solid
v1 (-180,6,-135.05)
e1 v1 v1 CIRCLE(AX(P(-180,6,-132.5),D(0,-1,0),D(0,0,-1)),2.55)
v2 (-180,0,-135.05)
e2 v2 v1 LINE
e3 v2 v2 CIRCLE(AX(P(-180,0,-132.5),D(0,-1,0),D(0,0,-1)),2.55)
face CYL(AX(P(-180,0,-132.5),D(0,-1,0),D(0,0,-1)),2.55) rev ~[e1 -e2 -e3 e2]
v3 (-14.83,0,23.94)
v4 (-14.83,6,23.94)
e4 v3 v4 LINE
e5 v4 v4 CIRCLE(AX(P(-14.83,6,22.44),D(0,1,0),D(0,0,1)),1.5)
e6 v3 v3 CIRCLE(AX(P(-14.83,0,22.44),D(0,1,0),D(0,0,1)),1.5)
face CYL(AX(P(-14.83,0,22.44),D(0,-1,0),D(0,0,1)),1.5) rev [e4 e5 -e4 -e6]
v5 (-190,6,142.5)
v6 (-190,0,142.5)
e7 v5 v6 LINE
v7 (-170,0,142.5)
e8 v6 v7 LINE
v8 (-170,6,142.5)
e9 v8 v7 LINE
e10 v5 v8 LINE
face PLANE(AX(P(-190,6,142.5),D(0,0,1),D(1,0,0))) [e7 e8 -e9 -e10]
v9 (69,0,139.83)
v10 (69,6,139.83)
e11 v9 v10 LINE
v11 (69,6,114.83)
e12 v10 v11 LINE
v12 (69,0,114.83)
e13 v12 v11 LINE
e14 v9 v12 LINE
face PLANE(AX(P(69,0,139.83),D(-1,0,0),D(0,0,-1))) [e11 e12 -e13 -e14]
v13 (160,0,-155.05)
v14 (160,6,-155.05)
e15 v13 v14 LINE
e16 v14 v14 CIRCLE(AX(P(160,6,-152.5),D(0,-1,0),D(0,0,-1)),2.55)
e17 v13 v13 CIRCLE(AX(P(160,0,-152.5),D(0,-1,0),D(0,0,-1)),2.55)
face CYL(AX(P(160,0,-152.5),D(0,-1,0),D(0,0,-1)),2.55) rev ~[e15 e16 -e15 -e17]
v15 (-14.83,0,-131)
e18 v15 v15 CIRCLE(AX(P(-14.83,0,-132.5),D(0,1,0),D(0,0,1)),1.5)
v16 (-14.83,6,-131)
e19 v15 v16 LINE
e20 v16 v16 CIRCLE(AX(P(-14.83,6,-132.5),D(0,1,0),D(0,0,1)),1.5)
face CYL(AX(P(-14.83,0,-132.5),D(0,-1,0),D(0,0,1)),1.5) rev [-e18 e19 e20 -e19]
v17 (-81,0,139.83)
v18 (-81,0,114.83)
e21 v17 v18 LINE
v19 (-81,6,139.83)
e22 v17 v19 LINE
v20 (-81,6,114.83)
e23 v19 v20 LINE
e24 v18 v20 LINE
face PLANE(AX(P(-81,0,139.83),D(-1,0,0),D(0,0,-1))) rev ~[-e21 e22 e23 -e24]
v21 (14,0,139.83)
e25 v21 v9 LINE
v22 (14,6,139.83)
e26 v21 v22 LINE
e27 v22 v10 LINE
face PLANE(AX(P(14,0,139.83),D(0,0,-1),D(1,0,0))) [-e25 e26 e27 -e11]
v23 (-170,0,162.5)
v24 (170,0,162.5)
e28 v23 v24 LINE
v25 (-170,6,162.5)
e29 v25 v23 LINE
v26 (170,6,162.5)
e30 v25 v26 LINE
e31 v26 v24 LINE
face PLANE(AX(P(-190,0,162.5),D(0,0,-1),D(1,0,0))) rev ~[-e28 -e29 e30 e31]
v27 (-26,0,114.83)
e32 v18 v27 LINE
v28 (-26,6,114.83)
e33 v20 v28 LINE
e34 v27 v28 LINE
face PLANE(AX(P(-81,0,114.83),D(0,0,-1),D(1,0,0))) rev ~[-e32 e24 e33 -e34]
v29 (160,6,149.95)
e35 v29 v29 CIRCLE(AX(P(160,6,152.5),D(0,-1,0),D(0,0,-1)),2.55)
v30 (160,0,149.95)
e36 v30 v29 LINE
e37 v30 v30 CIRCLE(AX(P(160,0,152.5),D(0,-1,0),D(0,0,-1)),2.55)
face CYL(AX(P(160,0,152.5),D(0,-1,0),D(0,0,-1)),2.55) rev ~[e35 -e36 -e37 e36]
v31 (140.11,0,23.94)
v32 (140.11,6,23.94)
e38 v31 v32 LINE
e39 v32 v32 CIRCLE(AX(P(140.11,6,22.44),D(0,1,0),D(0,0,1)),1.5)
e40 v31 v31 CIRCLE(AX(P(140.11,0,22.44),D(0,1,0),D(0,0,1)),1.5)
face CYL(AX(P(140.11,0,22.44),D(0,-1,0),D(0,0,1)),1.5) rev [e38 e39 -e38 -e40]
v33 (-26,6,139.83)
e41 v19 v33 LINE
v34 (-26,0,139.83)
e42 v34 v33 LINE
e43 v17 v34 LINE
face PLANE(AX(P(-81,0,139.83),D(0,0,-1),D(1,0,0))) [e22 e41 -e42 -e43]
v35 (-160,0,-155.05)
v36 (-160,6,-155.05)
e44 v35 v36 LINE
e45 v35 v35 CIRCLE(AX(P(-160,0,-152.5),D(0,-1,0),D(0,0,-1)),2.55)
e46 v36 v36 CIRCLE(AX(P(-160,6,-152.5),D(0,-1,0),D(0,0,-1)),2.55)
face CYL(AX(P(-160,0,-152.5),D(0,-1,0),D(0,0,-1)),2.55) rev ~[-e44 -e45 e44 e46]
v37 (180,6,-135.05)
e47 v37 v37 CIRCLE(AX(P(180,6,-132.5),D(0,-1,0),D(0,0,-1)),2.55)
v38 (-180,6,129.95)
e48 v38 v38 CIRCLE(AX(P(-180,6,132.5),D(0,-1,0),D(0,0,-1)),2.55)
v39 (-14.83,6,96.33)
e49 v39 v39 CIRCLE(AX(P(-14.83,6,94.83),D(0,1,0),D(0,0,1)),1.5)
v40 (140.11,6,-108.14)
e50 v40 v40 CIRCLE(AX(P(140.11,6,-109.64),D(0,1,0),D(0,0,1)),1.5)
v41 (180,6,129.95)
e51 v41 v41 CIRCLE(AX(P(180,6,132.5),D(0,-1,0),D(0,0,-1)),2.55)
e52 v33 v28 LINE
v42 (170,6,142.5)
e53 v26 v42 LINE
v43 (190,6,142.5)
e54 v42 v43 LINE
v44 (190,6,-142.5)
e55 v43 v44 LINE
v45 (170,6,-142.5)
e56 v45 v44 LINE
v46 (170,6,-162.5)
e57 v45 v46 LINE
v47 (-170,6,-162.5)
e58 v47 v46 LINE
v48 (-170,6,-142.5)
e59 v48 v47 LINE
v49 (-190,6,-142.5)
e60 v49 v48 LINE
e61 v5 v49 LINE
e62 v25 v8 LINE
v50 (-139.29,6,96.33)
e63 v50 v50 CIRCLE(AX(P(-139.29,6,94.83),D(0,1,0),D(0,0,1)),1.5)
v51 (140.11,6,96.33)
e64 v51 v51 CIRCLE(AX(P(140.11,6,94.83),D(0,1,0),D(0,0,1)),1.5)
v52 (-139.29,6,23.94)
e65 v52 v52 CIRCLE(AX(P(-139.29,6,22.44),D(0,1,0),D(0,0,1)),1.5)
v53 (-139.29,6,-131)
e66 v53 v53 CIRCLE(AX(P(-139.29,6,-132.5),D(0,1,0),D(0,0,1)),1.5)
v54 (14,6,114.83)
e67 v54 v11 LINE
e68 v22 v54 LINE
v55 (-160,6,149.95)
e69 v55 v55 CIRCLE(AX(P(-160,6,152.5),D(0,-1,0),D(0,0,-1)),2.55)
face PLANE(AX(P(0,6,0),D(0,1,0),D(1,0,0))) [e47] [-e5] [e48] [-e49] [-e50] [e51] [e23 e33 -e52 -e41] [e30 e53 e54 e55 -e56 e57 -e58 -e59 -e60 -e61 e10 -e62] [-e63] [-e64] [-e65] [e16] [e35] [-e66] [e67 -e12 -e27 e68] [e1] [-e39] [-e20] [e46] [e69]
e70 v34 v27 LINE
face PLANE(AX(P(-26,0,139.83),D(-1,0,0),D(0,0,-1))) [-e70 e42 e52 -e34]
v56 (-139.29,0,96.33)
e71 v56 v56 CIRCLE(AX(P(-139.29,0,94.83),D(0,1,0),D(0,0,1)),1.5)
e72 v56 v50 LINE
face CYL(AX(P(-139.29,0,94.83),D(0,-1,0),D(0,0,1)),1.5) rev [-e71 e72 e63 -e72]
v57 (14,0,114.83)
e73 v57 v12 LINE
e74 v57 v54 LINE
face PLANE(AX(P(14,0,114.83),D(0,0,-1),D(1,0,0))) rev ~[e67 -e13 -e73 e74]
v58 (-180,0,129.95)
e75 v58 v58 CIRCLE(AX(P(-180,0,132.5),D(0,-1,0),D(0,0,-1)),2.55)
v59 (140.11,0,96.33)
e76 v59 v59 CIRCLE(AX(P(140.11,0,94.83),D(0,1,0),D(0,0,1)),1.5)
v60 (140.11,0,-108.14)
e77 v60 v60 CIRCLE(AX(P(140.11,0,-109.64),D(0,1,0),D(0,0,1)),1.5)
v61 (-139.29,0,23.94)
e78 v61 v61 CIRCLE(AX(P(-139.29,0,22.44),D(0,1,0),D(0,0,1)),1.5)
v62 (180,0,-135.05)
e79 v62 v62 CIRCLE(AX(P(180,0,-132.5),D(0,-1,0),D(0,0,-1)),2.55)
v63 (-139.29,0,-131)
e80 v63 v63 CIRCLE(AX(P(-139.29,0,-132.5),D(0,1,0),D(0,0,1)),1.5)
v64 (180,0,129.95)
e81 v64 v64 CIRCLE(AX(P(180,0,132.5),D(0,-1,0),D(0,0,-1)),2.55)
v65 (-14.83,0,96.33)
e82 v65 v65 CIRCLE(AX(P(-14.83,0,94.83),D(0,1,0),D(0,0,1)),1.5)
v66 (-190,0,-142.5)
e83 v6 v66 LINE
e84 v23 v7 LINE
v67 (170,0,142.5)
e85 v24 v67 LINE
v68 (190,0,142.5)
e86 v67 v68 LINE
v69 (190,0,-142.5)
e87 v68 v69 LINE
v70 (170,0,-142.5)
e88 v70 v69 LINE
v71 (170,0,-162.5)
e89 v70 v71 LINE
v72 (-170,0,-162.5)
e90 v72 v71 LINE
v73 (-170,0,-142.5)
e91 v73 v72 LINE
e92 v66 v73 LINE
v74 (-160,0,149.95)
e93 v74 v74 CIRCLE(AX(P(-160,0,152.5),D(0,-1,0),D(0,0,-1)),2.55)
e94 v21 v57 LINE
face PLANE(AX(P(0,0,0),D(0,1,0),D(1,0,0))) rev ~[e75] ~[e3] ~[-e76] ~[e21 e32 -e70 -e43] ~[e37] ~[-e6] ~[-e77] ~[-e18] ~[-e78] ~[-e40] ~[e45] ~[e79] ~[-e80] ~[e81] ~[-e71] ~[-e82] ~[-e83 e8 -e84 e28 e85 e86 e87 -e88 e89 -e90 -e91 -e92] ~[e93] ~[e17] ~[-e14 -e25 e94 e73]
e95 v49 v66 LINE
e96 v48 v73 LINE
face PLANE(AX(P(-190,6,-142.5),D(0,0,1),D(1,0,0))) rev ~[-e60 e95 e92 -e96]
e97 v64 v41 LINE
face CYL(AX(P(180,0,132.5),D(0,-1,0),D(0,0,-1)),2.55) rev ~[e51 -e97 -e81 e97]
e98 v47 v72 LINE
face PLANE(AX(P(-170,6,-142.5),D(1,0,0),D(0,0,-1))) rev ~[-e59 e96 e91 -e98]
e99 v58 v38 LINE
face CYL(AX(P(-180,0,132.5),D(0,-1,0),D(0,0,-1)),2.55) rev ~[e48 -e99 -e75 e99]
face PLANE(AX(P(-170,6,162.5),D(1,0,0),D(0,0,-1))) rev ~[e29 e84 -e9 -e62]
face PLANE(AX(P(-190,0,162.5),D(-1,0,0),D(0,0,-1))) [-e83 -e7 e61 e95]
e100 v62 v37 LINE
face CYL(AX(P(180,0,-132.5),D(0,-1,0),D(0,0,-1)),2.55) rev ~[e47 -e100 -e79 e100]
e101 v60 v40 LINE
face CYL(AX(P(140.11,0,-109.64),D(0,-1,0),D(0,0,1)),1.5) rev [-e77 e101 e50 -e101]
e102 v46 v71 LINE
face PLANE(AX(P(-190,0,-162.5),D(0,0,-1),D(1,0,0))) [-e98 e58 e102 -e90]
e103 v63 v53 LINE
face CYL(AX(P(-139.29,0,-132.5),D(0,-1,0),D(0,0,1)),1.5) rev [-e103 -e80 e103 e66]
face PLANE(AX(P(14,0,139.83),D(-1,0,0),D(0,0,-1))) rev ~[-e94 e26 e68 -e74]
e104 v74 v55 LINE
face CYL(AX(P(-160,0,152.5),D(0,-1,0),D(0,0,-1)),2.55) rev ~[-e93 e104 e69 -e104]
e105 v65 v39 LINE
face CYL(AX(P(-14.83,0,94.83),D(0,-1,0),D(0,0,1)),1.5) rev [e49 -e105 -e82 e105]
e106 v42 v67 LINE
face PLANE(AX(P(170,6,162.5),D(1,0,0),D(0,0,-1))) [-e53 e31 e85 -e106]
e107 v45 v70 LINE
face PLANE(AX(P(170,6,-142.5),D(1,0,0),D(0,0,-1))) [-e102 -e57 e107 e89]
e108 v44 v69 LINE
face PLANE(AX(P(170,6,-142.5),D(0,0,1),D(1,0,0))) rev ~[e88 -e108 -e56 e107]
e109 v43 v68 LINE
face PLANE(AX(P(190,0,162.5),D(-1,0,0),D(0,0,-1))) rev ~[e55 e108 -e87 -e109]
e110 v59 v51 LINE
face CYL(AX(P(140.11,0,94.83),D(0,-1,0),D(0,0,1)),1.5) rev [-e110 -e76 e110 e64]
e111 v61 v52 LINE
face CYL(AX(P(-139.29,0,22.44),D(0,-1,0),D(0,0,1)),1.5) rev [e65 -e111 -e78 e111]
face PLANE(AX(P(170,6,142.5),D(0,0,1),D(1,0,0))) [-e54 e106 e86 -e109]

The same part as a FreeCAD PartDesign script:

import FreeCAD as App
import Part
import Sketcher

V = App.Vector
Q = App.Units.Quantity


def add_polygon(sketch, points):
    """Adds a closed chain of lines whose ends are joined by coincident constraints."""
    first, n = sketch.GeometryCount, len(points)
    for a, b in zip(points, points[1:] + points[:1]):
        sketch.addGeometry(Part.LineSegment(App.Vector(*a, 0), App.Vector(*b, 0)), False)
    for i in range(n):
        sketch.addConstraint(Sketcher.Constraint("Coincident", first + i, 2, first + (i + 1) % n, 1))

doc = App.newDocument("Part")
params = doc.addObject("Spreadsheet::Sheet", "Params")
for row, (alias, value) in enumerate([
    ("sketch1_diameter", "5 mm"),
    ("sketch1_diameter2", "3 mm"),
    ("sketch1_width", "380 mm"),
    ("sketch1_width2", "55 mm"),
    ("sketch1_height", "325 mm"),
    ("pad1_length", "6 mm"),
    ("sketch2_width", "20 mm"),
    ("pocket1_length", "10 mm"),
    ("sketch3_diameter", "5.1 mm"),
    ("pocket2_length", "10 mm"),
], start=1):
    params.set(f"A{row}", alias)
    params.set(f"B{row}", "=" + value)
    params.setAlias(f"B{row}", alias)

body = doc.addObject("PartDesign::Body", "Body")

# Sketch on XZ plane
sketch1 = body.newObject("Sketcher::SketchObject", "Sketch")
sketch1.AttachmentSupport = (doc.getObject("XZ_Plane"), [""])
sketch1.MapMode = "FlatFace"
add_polygon(sketch1, [(-190, -162.5), (-190, 162.5), (190, 162.5), (190, -162.5)])  # lines 0-3
sketch1.addGeometry(Part.Circle(V(-180, 152.5, 0), V(0, 0, 1), 2.5), False)  # 4
sketch1.addGeometry(Part.Circle(V(-139.3, 94.8, 0), V(0, 0, 1), 1.5), False)  # 5
add_polygon(sketch1, [(-26, 139.8), (-81, 139.8), (-81, 114.8), (-26, 114.8)])  # lines 6-9
sketch1.addGeometry(Part.Circle(V(-14.8, 94.8, 0), V(0, 0, 1), 1.5), False)  # 10
sketch1.addGeometry(Part.Circle(V(-139.3, 22.4, 0), V(0, 0, 1), 1.5), False)  # 11
sketch1.addGeometry(Part.Circle(V(-14.8, 22.4, 0), V(0, 0, 1), 1.5), False)  # 12
add_polygon(sketch1, [(69, 139.8), (14, 139.8), (14, 114.8), (69, 114.8)])  # lines 13-16
sketch1.addGeometry(Part.Circle(V(180, 152.5, 0), V(0, 0, 1), 2.5), False)  # 17
sketch1.addGeometry(Part.Circle(V(140.1, 94.8, 0), V(0, 0, 1), 1.5), False)  # 18
sketch1.addGeometry(Part.Circle(V(140.1, 22.4, 0), V(0, 0, 1), 1.5), False)  # 19
sketch1.addGeometry(Part.Circle(V(-139.3, -132.5, 0), V(0, 0, 1), 1.5), False)  # 20
sketch1.addGeometry(Part.Circle(V(-180, -152.5, 0), V(0, 0, 1), 2.5), False)  # 21
sketch1.addGeometry(Part.Circle(V(-14.8, -132.5, 0), V(0, 0, 1), 1.5), False)  # 22
sketch1.addGeometry(Part.Circle(V(140.1, -109.6, 0), V(0, 0, 1), 1.5), False)  # 23
sketch1.addGeometry(Part.Circle(V(180, -152.5, 0), V(0, 0, 1), 2.5), False)  # 24
sketch1.addConstraint([
    Sketcher.Constraint("Vertical", 0),
    Sketcher.Constraint("Horizontal", 1),
    Sketcher.Constraint("Vertical", 2),
    Sketcher.Constraint("Horizontal", 3),
    Sketcher.Constraint("Horizontal", 6),
    Sketcher.Constraint("Vertical", 7),
    Sketcher.Constraint("Horizontal", 8),
    Sketcher.Constraint("Vertical", 9),
    Sketcher.Constraint("Horizontal", 13),
    Sketcher.Constraint("Vertical", 14),
    Sketcher.Constraint("Horizontal", 15),
    Sketcher.Constraint("Vertical", 16),
    Sketcher.Constraint("Equal", 5, 10),
    Sketcher.Constraint("Equal", 10, 11),
    Sketcher.Constraint("Equal", 11, 12),
    Sketcher.Constraint("Equal", 4, 17),
    Sketcher.Constraint("Equal", 12, 18),
    Sketcher.Constraint("Equal", 18, 19),
    Sketcher.Constraint("Equal", 19, 20),
    Sketcher.Constraint("Equal", 17, 21),
    Sketcher.Constraint("Equal", 20, 22),
    Sketcher.Constraint("Equal", 22, 23),
    Sketcher.Constraint("Equal", 21, 24),
    Sketcher.Constraint("Symmetric", 17, 3, 21, 3, -1, 1),
    Sketcher.Constraint("Symmetric", 4, 3, 24, 3, -1, 1),
    Sketcher.Constraint("Symmetric", 0, 2, 2, 2, -1, 1),
    Sketcher.Constraint("Symmetric", 4, 3, 17, 3, -2),
    Sketcher.Constraint("Horizontal", 5, 3, 10, 3),
    Sketcher.Constraint("Horizontal", 11, 3, 12, 3),
    Sketcher.Constraint("Horizontal", 10, 3, 18, 3),
    Sketcher.Constraint("Horizontal", 12, 3, 19, 3),
    Sketcher.Constraint("Horizontal", 20, 3, 22, 3),
    Sketcher.Constraint("Horizontal", 9, 2, 13, 2),
    Sketcher.Constraint("Horizontal", 8, 2, 14, 2),
    Sketcher.Constraint("Vertical", 5, 3, 11, 3),
    Sketcher.Constraint("Vertical", 10, 3, 12, 3),
    Sketcher.Constraint("Vertical", 18, 3, 19, 3),
    Sketcher.Constraint("Vertical", 11, 3, 20, 3),
    Sketcher.Constraint("Vertical", 12, 3, 22, 3),
    Sketcher.Constraint("Vertical", 19, 3, 23, 3),
    Sketcher.Constraint("Equal", 8, 13),
    Sketcher.Constraint("Diameter", 4, Q("5 mm")),
    Sketcher.Constraint("Diameter", 5, Q("3 mm")),
    Sketcher.Constraint("DistanceX", 1, 1, 1, 2, Q("380 mm")),
    Sketcher.Constraint("DistanceX", 6, 2, 6, 1, Q("55 mm")),
    Sketcher.Constraint("DistanceY", 0, 1, 0, 2, Q("325 mm")),
    Sketcher.Constraint("DistanceY", 7, 2, 7, 1, Q("25 mm")),
    Sketcher.Constraint("DistanceX", 4, 3, -1, 1, Q("180 mm")),
    Sketcher.Constraint("DistanceX", 6, 2, -1, 1, Q("81 mm")),
    Sketcher.Constraint("DistanceX", -1, 1, 13, 2, Q("14 mm")),
    Sketcher.Constraint("DistanceY", 20, 3, 4, 3, Q("285 mm")),
    Sketcher.Constraint("DistanceY", 21, 3, 20, 3, Q("20 mm")),
    Sketcher.Constraint("DistanceY", 5, 3, 6, 2, Q("45 mm")),
    Sketcher.Constraint("DistanceX", 5, 3, 18, 3, Q("279.4 mm")),
    Sketcher.Constraint("DistanceX", 5, 3, -1, 1, Q("139.29 mm")),
    Sketcher.Constraint("DistanceY", -1, 1, 5, 3, Q("94.83 mm")),
    Sketcher.Constraint("DistanceX", 10, 3, -1, 1, Q("14.83 mm")),
    Sketcher.Constraint("DistanceY", -1, 1, 11, 3, Q("22.44 mm")),
    Sketcher.Constraint("DistanceY", 23, 3, -1, 1, Q("109.64 mm")),
])
sketch1.setExpression("Constraints[53]", "Params.sketch1_diameter")
sketch1.setExpression("Constraints[54]", "Params.sketch1_diameter2")
sketch1.setExpression("Constraints[55]", "Params.sketch1_width")
sketch1.setExpression("Constraints[56]", "Params.sketch1_width2")
sketch1.setExpression("Constraints[57]", "Params.sketch1_height")
pad1 = body.newObject("PartDesign::Pad", "Pad")
pad1.Profile = sketch1
pad1.setExpression("Length", "Params.pad1_length")
pad1.Reversed = True

# Sketch on XZ plane
sketch2 = body.newObject("Sketcher::SketchObject", "Sketch001")
sketch2.AttachmentSupport = (doc.getObject("XZ_Plane"), [""])
sketch2.MapMode = "FlatFace"
sketch2.AttachmentOffset = App.Placement(V(0, 0, -6), App.Rotation())
add_polygon(sketch2, [(-190, -162), (-190, -142), (-170, -142), (-170, -162)])  # lines 0-3
add_polygon(sketch2, [(170, -162), (170, -142), (190, -142), (190, -162)])  # lines 4-7
add_polygon(sketch2, [(170, 142), (170, 162), (190, 162), (190, 142)])  # lines 8-11
add_polygon(sketch2, [(-190, 142), (-190, 162), (-170, 162), (-170, 142)])  # lines 12-15
sketch2.addConstraint([
    Sketcher.Constraint("Vertical", 0),
    Sketcher.Constraint("Horizontal", 1),
    Sketcher.Constraint("Vertical", 2),
    Sketcher.Constraint("Horizontal", 3),
    Sketcher.Constraint("Vertical", 4),
    Sketcher.Constraint("Horizontal", 5),
    Sketcher.Constraint("Vertical", 6),
    Sketcher.Constraint("Horizontal", 7),
    Sketcher.Constraint("Vertical", 8),
    Sketcher.Constraint("Horizontal", 9),
    Sketcher.Constraint("Vertical", 10),
    Sketcher.Constraint("Horizontal", 11),
    Sketcher.Constraint("Vertical", 12),
    Sketcher.Constraint("Horizontal", 13),
    Sketcher.Constraint("Vertical", 14),
    Sketcher.Constraint("Horizontal", 15),
    Sketcher.Constraint("Symmetric", 2, 2, 8, 2, -1, 1),
    Sketcher.Constraint("Symmetric", 0, 2, 10, 2, -1, 1),
    Sketcher.Constraint("Symmetric", 6, 2, 12, 2, -1, 1),
    Sketcher.Constraint("Symmetric", 4, 2, 14, 2, -1, 1),
    Sketcher.Constraint("Symmetric", 1, 2, 4, 2, -2),
    Sketcher.Constraint("Symmetric", 3, 2, 6, 2, -2),
    Sketcher.Constraint("Equal", 15, 0),
    Sketcher.Constraint("DistanceX", 1, 1, 1, 2, Q("20 mm")),
    Sketcher.Constraint("DistanceX", 0, 2, -1, 1, Q("190 mm")),
    Sketcher.Constraint("DistanceY", 4, 2, 8, 2, Q("305 mm")),
])
sketch2.setExpression("Constraints[39]", "Params.sketch2_width")
pocket1 = body.newObject("PartDesign::Pocket", "Pocket")
pocket1.Profile = sketch2
pocket1.setExpression("Length", "Params.pocket1_length")
pocket1.Reversed = True

# Sketch on XZ plane
sketch3 = body.newObject("Sketcher::SketchObject", "Sketch002")
sketch3.AttachmentSupport = (doc.getObject("XZ_Plane"), [""])
sketch3.MapMode = "FlatFace"
sketch3.addGeometry([
    Part.Circle(V(-160, 152.5, 0), V(0, 0, 1), 2.5),  # 0
    Part.Circle(V(-180, 132.5, 0), V(0, 0, 1), 2.5),  # 1
    Part.Circle(V(-180, -132.5, 0), V(0, 0, 1), 2.5),  # 2
    Part.Circle(V(-160, -152.5, 0), V(0, 0, 1), 2.5),  # 3
    Part.Circle(V(160, -152.5, 0), V(0, 0, 1), 2.5),  # 4
    Part.Circle(V(180, -132.5, 0), V(0, 0, 1), 2.5),  # 5
    Part.Circle(V(180, 132.5, 0), V(0, 0, 1), 2.5),  # 6
    Part.Circle(V(160, 152.5, 0), V(0, 0, 1), 2.5),  # 7
], False)
sketch3.addConstraint([
    Sketcher.Constraint("Equal", 0, 1),
    Sketcher.Constraint("Equal", 1, 2),
    Sketcher.Constraint("Equal", 2, 3),
    Sketcher.Constraint("Equal", 3, 4),
    Sketcher.Constraint("Equal", 4, 5),
    Sketcher.Constraint("Equal", 5, 6),
    Sketcher.Constraint("Equal", 6, 7),
    Sketcher.Constraint("Symmetric", 0, 3, 4, 3, -1, 1),
    Sketcher.Constraint("Symmetric", 1, 3, 5, 3, -1, 1),
    Sketcher.Constraint("Symmetric", 2, 3, 6, 3, -1, 1),
    Sketcher.Constraint("Symmetric", 3, 3, 7, 3, -1, 1),
    Sketcher.Constraint("Symmetric", 3, 3, 4, 3, -2),
    Sketcher.Constraint("Symmetric", 2, 3, 5, 3, -2),
    Sketcher.Constraint("Diameter", 0, Q("5.1 mm")),
    Sketcher.Constraint("DistanceX", 0, 3, -1, 1, Q("160 mm")),
    Sketcher.Constraint("DistanceX", 1, 3, -1, 1, Q("180 mm")),
    Sketcher.Constraint("DistanceY", 1, 3, 0, 3, Q("20 mm")),
    Sketcher.Constraint("DistanceY", 2, 3, 1, 3, Q("265 mm")),
])
sketch3.setExpression("Constraints[13]", "Params.sketch3_diameter")
pocket2 = body.newObject("PartDesign::Pocket", "Pocket001")
pocket2.Profile = sketch3
pocket2.setExpression("Length", "Params.pocket2_length")

doc.recompute()
